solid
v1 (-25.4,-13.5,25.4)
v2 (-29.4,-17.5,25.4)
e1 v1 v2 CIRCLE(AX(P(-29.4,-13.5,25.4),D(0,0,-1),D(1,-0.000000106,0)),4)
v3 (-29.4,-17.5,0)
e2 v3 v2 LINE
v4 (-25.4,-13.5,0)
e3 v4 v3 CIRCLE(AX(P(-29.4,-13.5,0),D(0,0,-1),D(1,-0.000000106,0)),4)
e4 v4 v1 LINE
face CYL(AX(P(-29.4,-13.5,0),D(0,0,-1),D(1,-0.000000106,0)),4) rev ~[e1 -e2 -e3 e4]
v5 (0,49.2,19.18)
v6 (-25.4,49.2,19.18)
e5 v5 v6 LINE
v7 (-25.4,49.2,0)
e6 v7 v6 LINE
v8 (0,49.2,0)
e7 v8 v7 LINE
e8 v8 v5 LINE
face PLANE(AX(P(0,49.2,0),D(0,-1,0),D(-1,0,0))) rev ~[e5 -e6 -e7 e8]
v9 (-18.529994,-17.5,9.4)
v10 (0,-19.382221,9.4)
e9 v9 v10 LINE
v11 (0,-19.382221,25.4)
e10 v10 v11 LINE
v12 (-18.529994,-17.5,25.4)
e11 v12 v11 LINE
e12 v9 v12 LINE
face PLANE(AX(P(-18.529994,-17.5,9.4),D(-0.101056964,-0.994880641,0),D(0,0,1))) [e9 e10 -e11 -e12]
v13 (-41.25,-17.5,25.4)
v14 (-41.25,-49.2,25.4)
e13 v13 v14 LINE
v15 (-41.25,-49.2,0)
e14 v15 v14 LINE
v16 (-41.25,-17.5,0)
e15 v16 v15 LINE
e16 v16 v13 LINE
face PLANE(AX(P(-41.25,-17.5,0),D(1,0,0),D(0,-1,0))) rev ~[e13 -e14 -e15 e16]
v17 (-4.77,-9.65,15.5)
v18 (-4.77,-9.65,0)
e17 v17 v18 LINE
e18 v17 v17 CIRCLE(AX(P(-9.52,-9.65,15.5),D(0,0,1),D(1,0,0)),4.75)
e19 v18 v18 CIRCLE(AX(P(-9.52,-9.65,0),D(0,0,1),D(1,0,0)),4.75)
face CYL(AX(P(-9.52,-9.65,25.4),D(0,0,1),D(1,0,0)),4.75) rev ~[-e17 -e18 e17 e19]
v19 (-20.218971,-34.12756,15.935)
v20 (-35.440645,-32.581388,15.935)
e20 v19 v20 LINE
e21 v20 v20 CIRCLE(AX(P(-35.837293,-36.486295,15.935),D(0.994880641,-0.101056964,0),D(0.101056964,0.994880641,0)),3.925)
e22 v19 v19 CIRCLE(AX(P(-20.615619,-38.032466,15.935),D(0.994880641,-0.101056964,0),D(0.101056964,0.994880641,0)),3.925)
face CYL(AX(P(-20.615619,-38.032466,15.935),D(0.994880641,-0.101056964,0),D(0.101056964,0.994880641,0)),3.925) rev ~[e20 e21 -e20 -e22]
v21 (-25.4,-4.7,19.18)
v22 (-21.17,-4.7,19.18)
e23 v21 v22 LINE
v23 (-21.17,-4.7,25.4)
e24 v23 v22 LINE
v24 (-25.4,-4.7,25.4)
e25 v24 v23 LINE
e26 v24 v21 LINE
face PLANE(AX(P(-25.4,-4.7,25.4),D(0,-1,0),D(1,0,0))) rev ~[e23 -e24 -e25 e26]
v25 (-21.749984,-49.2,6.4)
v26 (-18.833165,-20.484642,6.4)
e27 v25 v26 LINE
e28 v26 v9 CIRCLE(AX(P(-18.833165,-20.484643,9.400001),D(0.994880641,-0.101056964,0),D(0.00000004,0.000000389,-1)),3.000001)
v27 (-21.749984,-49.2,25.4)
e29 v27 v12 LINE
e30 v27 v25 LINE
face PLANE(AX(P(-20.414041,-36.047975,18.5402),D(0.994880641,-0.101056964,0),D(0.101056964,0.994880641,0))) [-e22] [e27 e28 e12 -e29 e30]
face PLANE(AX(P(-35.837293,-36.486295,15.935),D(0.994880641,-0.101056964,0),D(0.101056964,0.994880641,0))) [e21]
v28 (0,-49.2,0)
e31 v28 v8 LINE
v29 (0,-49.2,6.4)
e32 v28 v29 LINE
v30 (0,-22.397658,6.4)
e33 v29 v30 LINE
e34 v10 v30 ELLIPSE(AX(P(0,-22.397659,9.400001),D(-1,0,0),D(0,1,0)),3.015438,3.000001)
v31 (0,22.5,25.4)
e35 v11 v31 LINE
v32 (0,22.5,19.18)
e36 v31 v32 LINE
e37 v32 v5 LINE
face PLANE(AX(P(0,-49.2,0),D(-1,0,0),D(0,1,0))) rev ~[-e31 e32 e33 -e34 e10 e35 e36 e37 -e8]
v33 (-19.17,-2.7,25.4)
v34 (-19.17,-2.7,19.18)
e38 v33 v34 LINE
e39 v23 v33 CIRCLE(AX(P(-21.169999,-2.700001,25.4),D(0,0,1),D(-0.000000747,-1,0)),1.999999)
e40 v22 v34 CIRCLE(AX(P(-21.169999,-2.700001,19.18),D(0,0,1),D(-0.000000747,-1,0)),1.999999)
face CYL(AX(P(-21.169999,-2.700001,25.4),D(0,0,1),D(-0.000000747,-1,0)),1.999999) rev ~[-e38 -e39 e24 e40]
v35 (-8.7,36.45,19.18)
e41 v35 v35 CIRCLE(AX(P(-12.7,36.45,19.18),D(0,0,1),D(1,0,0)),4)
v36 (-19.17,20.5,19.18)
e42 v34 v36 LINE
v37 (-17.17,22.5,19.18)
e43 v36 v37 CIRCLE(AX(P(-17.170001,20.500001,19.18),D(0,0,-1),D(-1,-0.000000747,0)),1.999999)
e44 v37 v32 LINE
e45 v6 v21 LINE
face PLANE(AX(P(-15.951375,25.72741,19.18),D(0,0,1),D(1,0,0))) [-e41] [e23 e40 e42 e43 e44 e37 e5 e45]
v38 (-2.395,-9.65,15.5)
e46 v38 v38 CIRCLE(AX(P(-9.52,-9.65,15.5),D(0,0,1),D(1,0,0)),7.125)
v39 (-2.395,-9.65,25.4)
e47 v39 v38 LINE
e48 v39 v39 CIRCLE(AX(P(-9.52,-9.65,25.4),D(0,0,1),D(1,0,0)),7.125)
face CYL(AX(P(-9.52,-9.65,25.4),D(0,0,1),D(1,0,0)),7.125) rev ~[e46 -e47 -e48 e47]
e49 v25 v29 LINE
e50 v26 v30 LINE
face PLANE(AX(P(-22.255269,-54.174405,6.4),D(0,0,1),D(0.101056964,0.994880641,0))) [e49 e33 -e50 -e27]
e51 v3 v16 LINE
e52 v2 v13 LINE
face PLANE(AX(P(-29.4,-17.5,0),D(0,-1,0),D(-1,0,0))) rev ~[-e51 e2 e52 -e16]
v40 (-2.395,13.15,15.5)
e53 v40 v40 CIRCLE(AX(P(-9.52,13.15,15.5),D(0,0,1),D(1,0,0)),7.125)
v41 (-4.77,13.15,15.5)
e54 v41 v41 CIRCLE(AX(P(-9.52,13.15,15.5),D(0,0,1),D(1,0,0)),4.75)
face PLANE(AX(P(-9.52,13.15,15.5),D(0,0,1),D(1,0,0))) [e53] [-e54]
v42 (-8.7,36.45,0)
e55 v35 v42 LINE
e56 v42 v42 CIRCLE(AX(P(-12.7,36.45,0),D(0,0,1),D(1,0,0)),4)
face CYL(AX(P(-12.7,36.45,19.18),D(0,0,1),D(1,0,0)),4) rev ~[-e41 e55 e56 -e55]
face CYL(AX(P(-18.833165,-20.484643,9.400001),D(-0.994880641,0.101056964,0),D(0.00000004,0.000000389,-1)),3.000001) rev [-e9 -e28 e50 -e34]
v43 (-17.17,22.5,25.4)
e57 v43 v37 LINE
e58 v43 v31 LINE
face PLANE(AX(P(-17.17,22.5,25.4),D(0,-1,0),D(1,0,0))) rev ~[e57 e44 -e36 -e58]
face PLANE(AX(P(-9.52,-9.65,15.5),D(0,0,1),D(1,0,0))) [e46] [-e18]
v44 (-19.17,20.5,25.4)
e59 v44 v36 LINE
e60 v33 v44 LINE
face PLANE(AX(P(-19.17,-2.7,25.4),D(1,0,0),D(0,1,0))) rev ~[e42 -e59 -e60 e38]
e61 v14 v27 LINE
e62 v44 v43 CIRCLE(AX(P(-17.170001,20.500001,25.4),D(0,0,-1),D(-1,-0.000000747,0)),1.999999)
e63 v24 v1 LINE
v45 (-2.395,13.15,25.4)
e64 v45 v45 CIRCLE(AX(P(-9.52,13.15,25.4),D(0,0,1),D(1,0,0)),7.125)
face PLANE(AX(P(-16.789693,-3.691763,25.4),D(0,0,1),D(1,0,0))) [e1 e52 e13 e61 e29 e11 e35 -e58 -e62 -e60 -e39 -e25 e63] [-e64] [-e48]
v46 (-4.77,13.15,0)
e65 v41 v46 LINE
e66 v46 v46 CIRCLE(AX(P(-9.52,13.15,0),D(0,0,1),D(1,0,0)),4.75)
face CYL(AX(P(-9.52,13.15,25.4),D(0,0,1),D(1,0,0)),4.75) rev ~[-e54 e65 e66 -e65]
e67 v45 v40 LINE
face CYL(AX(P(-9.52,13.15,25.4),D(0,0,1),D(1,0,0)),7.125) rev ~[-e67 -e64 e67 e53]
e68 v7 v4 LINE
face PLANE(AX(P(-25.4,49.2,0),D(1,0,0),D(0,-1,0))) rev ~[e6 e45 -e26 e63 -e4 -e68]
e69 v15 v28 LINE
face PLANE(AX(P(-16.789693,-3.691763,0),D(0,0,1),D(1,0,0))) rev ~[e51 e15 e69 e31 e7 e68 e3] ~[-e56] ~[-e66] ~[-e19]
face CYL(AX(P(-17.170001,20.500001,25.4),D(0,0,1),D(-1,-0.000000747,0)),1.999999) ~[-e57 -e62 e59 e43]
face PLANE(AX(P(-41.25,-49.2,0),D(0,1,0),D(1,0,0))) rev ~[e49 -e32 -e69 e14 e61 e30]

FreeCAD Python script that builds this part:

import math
import FreeCAD as App
import Part
import Sketcher

doc = App.newDocument("Part")
params = doc.addObject("Spreadsheet::Sheet", "Params")
for row, (alias, value) in enumerate([
    ("sketch1_radius", "4 mm"),
    ("sketch1_width", "25.4 mm"),
    ("sketch1_height", "98.4 mm"),
    ("sketch1_height2", "62.7 mm"),
    ("sketch1_width2", "11.85 mm"),
    ("pad1_length", "25.4 mm"),
    ("sketch2_radius", "1.999999 mm"),
    ("sketch2_width", "25.4 mm"),
    ("sketch2_height", "53.9 mm"),
    ("sketch2_height2", "23.2 mm"),
    ("sketch2_width2", "4.23 mm"),
    ("pocket1_length", "6.22 mm"),
    ("sketch3_radius", "3.000001 mm"),
    ("sketch3_height", "21 mm"),
    ("pocket2_length", "25 mm"),
    ("sketch4_diameter", "7.85 mm"),
    ("pocket3_length", "15.3 mm"),
    ("sketch5_diameter", "8 mm"),
    ("sketch6_diameter", "9.5 mm"),
    ("sketch7_diameter", "9.5 mm"),
    ("sketch8_diameter", "14.25 mm"),
    ("pocket7_length", "9.9 mm"),
    ("sketch9_diameter", "14.25 mm"),
    ("pocket8_length", "9.9 mm"),
], start=1):
    params.set(f"A{row}", alias)
    params.set(f"B{row}", "=" + value)
    params.setAlias(f"B{row}", alias)

body = doc.addObject("PartDesign::Body", "Body")

# Sketch on XY plane
sketch1 = body.newObject("Sketcher::SketchObject", "Sketch")
sketch1.AttachmentSupport = (doc.getObject("XY_Plane"), [""])
sketch1.MapMode = "FlatFace"
sketch1.addGeometry(Part.LineSegment(App.Vector(0, -49.2, 0), App.Vector(0, 49.2, 0)), False)
sketch1.addGeometry(Part.LineSegment(App.Vector(0, 49.2, 0), App.Vector(-25.4, 49.2, 0)), False)
sketch1.addGeometry(Part.LineSegment(App.Vector(-25.4, 49.2, 0), App.Vector(-25.4, -13.5, 0)), False)
sketch1.addGeometry(Part.ArcOfCircle(Part.Circle(App.Vector(-29.4, -13.5, 0), App.Vector(0, 0, 1), 4), math.radians(-90), math.radians(0)), False)
sketch1.addGeometry(Part.LineSegment(App.Vector(-29.4, -17.5, 0), App.Vector(-41.2, -17.5, 0)), False)
sketch1.addGeometry(Part.LineSegment(App.Vector(-41.2, -17.5, 0), App.Vector(-41.2, -49.2, 0)), False)
sketch1.addGeometry(Part.LineSegment(App.Vector(-41.2, -49.2, 0), App.Vector(0, -49.2, 0)), False)
sketch1.addConstraint(Sketcher.Constraint("Coincident", 0, 2, 1, 1))
sketch1.addConstraint(Sketcher.Constraint("Coincident", 1, 2, 2, 1))
sketch1.addConstraint(Sketcher.Constraint("Tangent", 2, 2, 3, 2))
sketch1.addConstraint(Sketcher.Constraint("Tangent", 3, 1, 4, 1))
sketch1.addConstraint(Sketcher.Constraint("Coincident", 4, 2, 5, 1))
sketch1.addConstraint(Sketcher.Constraint("Coincident", 5, 2, 6, 1))
sketch1.addConstraint(Sketcher.Constraint("Coincident", 6, 2, 0, 1))
sketch1.addConstraint(Sketcher.Constraint("Vertical", 0))
sketch1.addConstraint(Sketcher.Constraint("Horizontal", 1))
sketch1.addConstraint(Sketcher.Constraint("Vertical", 2))
sketch1.addConstraint(Sketcher.Constraint("Horizontal", 4))
sketch1.addConstraint(Sketcher.Constraint("Vertical", 5))
sketch1.addConstraint(Sketcher.Constraint("Horizontal", 6))
sketch1.addConstraint(Sketcher.Constraint("Symmetric", 0, 2, 6, 2, -1, 1))
sketch1.addConstraint(Sketcher.Constraint("Radius", 3, 4.0))
sketch1.addConstraint(Sketcher.Constraint("DistanceX", 1, 2, 1, 1, 25.4))
sketch1.addConstraint(Sketcher.Constraint("DistanceY", 0, 1, 0, 2, 98.4))
sketch1.addConstraint(Sketcher.Constraint("DistanceY", 2, 2, 2, 1, 62.7))
sketch1.addConstraint(Sketcher.Constraint("DistanceX", 4, 2, 4, 1, 11.85))
sketch1.setExpression("Constraints[14]", "Params.sketch1_radius")
sketch1.setExpression("Constraints[15]", "Params.sketch1_width")
sketch1.setExpression("Constraints[16]", "Params.sketch1_height")
sketch1.setExpression("Constraints[17]", "Params.sketch1_height2")
sketch1.setExpression("Constraints[18]", "Params.sketch1_width2")
pad1 = body.newObject("PartDesign::Pad", "Pad")
pad1.Profile = sketch1
pad1.setExpression("Length", "Params.pad1_length")

# Sketch on XY plane
sketch2 = body.newObject("Sketcher::SketchObject", "Sketch001")
sketch2.AttachmentSupport = (doc.getObject("XY_Plane"), [""])
sketch2.MapMode = "FlatFace"
sketch2.AttachmentOffset = App.Placement(App.Vector(0, 0, 25.4), App.Rotation())
sketch2.addGeometry(Part.LineSegment(App.Vector(0, 49.2, 0), App.Vector(-25.4, 49.2, 0)), False)
sketch2.addGeometry(Part.LineSegment(App.Vector(-25.4, 49.2, 0), App.Vector(-25.4, -4.7, 0)), False)
sketch2.addGeometry(Part.LineSegment(App.Vector(-25.4, -4.7, 0), App.Vector(-21.2, -4.7, 0)), False)
sketch2.addGeometry(Part.ArcOfCircle(Part.Circle(App.Vector(-21.2, -2.7, 0), App.Vector(0, 0, 1), 2), math.radians(-90), math.radians(0)), False)
sketch2.addGeometry(Part.LineSegment(App.Vector(-19.2, -2.7, 0), App.Vector(-19.2, 20.5, 0)), False)
sketch2.addGeometry(Part.ArcOfCircle(Part.Circle(App.Vector(-17.2, 20.5, 0), App.Vector(0, 0, 1), 2), math.radians(90), math.radians(180)), False)
sketch2.addGeometry(Part.LineSegment(App.Vector(-17.2, 22.5, 0), App.Vector(0, 22.5, 0)), False)
sketch2.addGeometry(Part.LineSegment(App.Vector(0, 22.5, 0), App.Vector(0, 49.2, 0)), False)
sketch2.addConstraint(Sketcher.Constraint("Coincident", 0, 2, 1, 1))
sketch2.addConstraint(Sketcher.Constraint("Coincident", 1, 2, 2, 1))
sketch2.addConstraint(Sketcher.Constraint("Tangent", 2, 2, 3, 1))
sketch2.addConstraint(Sketcher.Constraint("Tangent", 3, 2, 4, 1))
sketch2.addConstraint(Sketcher.Constraint("Tangent", 4, 2, 5, 2))
sketch2.addConstraint(Sketcher.Constraint("Tangent", 5, 1, 6, 1))
sketch2.addConstraint(Sketcher.Constraint("Coincident", 6, 2, 7, 1))
sketch2.addConstraint(Sketcher.Constraint("Coincident", 7, 2, 0, 1))
sketch2.addConstraint(Sketcher.Constraint("Horizontal", 0))
sketch2.addConstraint(Sketcher.Constraint("Vertical", 1))
sketch2.addConstraint(Sketcher.Constraint("Horizontal", 2))
sketch2.addConstraint(Sketcher.Constraint("Vertical", 4))
sketch2.addConstraint(Sketcher.Constraint("Horizontal", 6))
sketch2.addConstraint(Sketcher.Constraint("Vertical", 7))
sketch2.addConstraint(Sketcher.Constraint("Equal", 3, 5))
sketch2.addConstraint(Sketcher.Constraint("PointOnObject", 6, 2, -2))
sketch2.addConstraint(Sketcher.Constraint("Radius", 3, 1.999999))
sketch2.addConstraint(Sketcher.Constraint("DistanceX", 0, 2, 0, 1, 25.4))
sketch2.addConstraint(Sketcher.Constraint("DistanceY", 1, 2, 1, 1, 53.9))
sketch2.addConstraint(Sketcher.Constraint("DistanceY", 4, 1, 4, 2, 23.2))
sketch2.addConstraint(Sketcher.Constraint("DistanceX", 2, 1, 2, 2, 4.23))
sketch2.addConstraint(Sketcher.Constraint("DistanceY", 3, 3, -1, 1, 2.700001))
sketch2.setExpression("Constraints[16]", "Params.sketch2_radius")
sketch2.setExpression("Constraints[17]", "Params.sketch2_width")
sketch2.setExpression("Constraints[18]", "Params.sketch2_height")
sketch2.setExpression("Constraints[19]", "Params.sketch2_height2")
sketch2.setExpression("Constraints[20]", "Params.sketch2_width2")
pocket1 = body.newObject("PartDesign::Pocket", "Pocket")
pocket1.Profile = sketch2
pocket1.setExpression("Length", "Params.pocket1_length")

# Sketch on an angled plane
sketch3 = body.newObject("Sketcher::SketchObject", "Sketch002")
sketch3.Placement = App.Placement(App.Vector(-16.581312, 1.684285, 0), App.Rotation(App.Vector(0.101056964, 0.994880641, 0), App.Vector(0, 0, 1), App.Vector(0.994880641, -0.101056964, 0), "ZXY"))
sketch3.addGeometry(Part.LineSegment(App.Vector(-19.3, 9.4, 0), App.Vector(-19.3, 30.4, 0)), False)
sketch3.addGeometry(Part.LineSegment(App.Vector(-19.3, 30.4, 0), App.Vector(-56.1, 30.4, 0)), False)
sketch3.addGeometry(Part.LineSegment(App.Vector(-56.1, 30.4, 0), App.Vector(-56.1, 6.4, 0)), False)
sketch3.addGeometry(Part.LineSegment(App.Vector(-56.1, 6.4, 0), App.Vector(-22.3, 6.4, 0)), False)
sketch3.addGeometry(Part.ArcOfCircle(Part.Circle(App.Vector(-22.3, 9.4, 0), App.Vector(0, 0, 1), 3), math.radians(-90), math.radians(0)), False)
sketch3.addConstraint(Sketcher.Constraint("Coincident", 0, 2, 1, 1))
sketch3.addConstraint(Sketcher.Constraint("Coincident", 1, 2, 2, 1))
sketch3.addConstraint(Sketcher.Constraint("Coincident", 2, 2, 3, 1))
sketch3.addConstraint(Sketcher.Constraint("Tangent", 3, 2, 4, 1))
sketch3.addConstraint(Sketcher.Constraint("Tangent", 4, 2, 0, 1))
sketch3.addConstraint(Sketcher.Constraint("Vertical", 0))
sketch3.addConstraint(Sketcher.Constraint("Horizontal", 1))
sketch3.addConstraint(Sketcher.Constraint("Vertical", 2))
sketch3.addConstraint(Sketcher.Constraint("Horizontal", 3))
sketch3.addConstraint(Sketcher.Constraint("Radius", 4, 3.000001))
sketch3.addConstraint(Sketcher.Constraint("DistanceY", 0, 1, 0, 2, 21.0))
sketch3.addConstraint(Sketcher.Constraint("DistanceY", -1, 1, 4, 3, 9.400001))
sketch3.addConstraint(Sketcher.Constraint("DistanceX", 0, 2, -1, 1, 19.283002))
sketch3.addConstraint(Sketcher.Constraint("DistanceX", 1, 2, 1, 1, 36.86312))
sketch3.setExpression("Constraints[9]", "Params.sketch3_radius")
sketch3.setExpression("Constraints[10]", "Params.sketch3_height")
pocket2 = body.newObject("PartDesign::Pocket", "Pocket001")
pocket2.Profile = sketch3
pocket2.setExpression("Length", "Params.pocket2_length")
pocket2.Reversed = True

# Sketch on an angled plane
sketch4 = body.newObject("Sketcher::SketchObject", "Sketch003")
sketch4.Placement = App.Placement(App.Vector(-16.581312, 1.684285, 0), App.Rotation(App.Vector(0.101056964, 0.994880641, 0), App.Vector(0, 0, 1), App.Vector(0.994880641, -0.101056964, 0), "ZXY"))
sketch4.addGeometry(Part.Circle(App.Vector(-39.9, 15.9, 0), App.Vector(0, 0, 1), 3.9), False)
sketch4.addConstraint(Sketcher.Constraint("Diameter", 0, 7.85))
sketch4.addConstraint(Sketcher.Constraint("DistanceY", -1, 1, 0, 3, 15.935))
sketch4.addConstraint(Sketcher.Constraint("DistanceX", 0, 3, -1, 1, 39.921122))
sketch4.setExpression("Constraints[0]", "Params.sketch4_diameter")
pocket3 = body.newObject("PartDesign::Pocket", "Pocket002")
pocket3.Profile = sketch4
pocket3.setExpression("Length", "Params.pocket3_length")

# Sketch on XY plane
sketch5 = body.newObject("Sketcher::SketchObject", "Sketch004")
sketch5.AttachmentSupport = (doc.getObject("XY_Plane"), [""])
sketch5.MapMode = "FlatFace"
sketch5.AttachmentOffset = App.Placement(App.Vector(0, 0, 19.18), App.Rotation())
sketch5.addGeometry(Part.Circle(App.Vector(-12.7, 36.5, 0), App.Vector(0, 0, 1), 4), False)
sketch5.addConstraint(Sketcher.Constraint("Diameter", 0, 8.0))
sketch5.addConstraint(Sketcher.Constraint("DistanceX", 0, 3, -1, 1, 12.7))
sketch5.addConstraint(Sketcher.Constraint("DistanceY", -1, 1, 0, 3, 36.45))
sketch5.setExpression("Constraints[0]", "Params.sketch5_diameter")
pocket4 = body.newObject("PartDesign::Pocket", "Pocket003")
pocket4.Profile = sketch5
pocket4.Type = "ThroughAll"

# Sketch on XY plane
sketch6 = body.newObject("Sketcher::SketchObject", "Sketch005")
sketch6.AttachmentSupport = (doc.getObject("XY_Plane"), [""])
sketch6.MapMode = "FlatFace"
sketch6.AttachmentOffset = App.Placement(App.Vector(0, 0, 25.4), App.Rotation())
sketch6.addGeometry(Part.Circle(App.Vector(-9.5, 13.2, 0), App.Vector(0, 0, 1), 4.8), False)
sketch6.addConstraint(Sketcher.Constraint("Diameter", 0, 9.5))
sketch6.addConstraint(Sketcher.Constraint("DistanceX", 0, 3, -1, 1, 9.52))
sketch6.addConstraint(Sketcher.Constraint("DistanceY", -1, 1, 0, 3, 13.15))
sketch6.setExpression("Constraints[0]", "Params.sketch6_diameter")
pocket5 = body.newObject("PartDesign::Pocket", "Pocket004")
pocket5.Profile = sketch6
pocket5.Type = "ThroughAll"

# Sketch on XY plane
sketch7 = body.newObject("Sketcher::SketchObject", "Sketch006")
sketch7.AttachmentSupport = (doc.getObject("XY_Plane"), [""])
sketch7.MapMode = "FlatFace"
sketch7.AttachmentOffset = App.Placement(App.Vector(0, 0, 25.4), App.Rotation())
sketch7.addGeometry(Part.Circle(App.Vector(-9.5, -9.7, 0), App.Vector(0, 0, 1), 4.8), False)
sketch7.addConstraint(Sketcher.Constraint("Diameter", 0, 9.5))
sketch7.addConstraint(Sketcher.Constraint("DistanceX", 0, 3, -1, 1, 9.52))
sketch7.addConstraint(Sketcher.Constraint("DistanceY", 0, 3, -1, 1, 9.65))
sketch7.setExpression("Constraints[0]", "Params.sketch7_diameter")
pocket6 = body.newObject("PartDesign::Pocket", "Pocket005")
pocket6.Profile = sketch7
pocket6.Type = "ThroughAll"

# Sketch on XY plane
sketch8 = body.newObject("Sketcher::SketchObject", "Sketch007")
sketch8.AttachmentSupport = (doc.getObject("XY_Plane"), [""])
sketch8.MapMode = "FlatFace"
sketch8.AttachmentOffset = App.Placement(App.Vector(0, 0, 25.4), App.Rotation())
sketch8.addGeometry(Part.Circle(App.Vector(-10, 13, 0), App.Vector(0, 0, 1), 7), False)
sketch8.addConstraint(Sketcher.Constraint("Diameter", 0, 14.25))
sketch8.addConstraint(Sketcher.Constraint("DistanceX", 0, 3, -1, 1, 9.52))
sketch8.addConstraint(Sketcher.Constraint("DistanceY", -1, 1, 0, 3, 13.15))
sketch8.setExpression("Constraints[0]", "Params.sketch8_diameter")
pocket7 = body.newObject("PartDesign::Pocket", "Pocket006")
pocket7.Profile = sketch8
pocket7.setExpression("Length", "Params.pocket7_length")

# Sketch on XY plane
sketch9 = body.newObject("Sketcher::SketchObject", "Sketch008")
sketch9.AttachmentSupport = (doc.getObject("XY_Plane"), [""])
sketch9.MapMode = "FlatFace"
sketch9.AttachmentOffset = App.Placement(App.Vector(0, 0, 25.4), App.Rotation())
sketch9.addGeometry(Part.Circle(App.Vector(-10, -10, 0), App.Vector(0, 0, 1), 7), False)
sketch9.addConstraint(Sketcher.Constraint("Diameter", 0, 14.25))
sketch9.addConstraint(Sketcher.Constraint("DistanceX", 0, 3, -1, 1, 9.52))
sketch9.addConstraint(Sketcher.Constraint("DistanceY", 0, 3, -1, 1, 9.65))
sketch9.setExpression("Constraints[0]", "Params.sketch9_diameter")
pocket8 = body.newObject("PartDesign::Pocket", "Pocket007")
pocket8.Profile = sketch9
pocket8.setExpression("Length", "Params.pocket8_length")

doc.recompute()
